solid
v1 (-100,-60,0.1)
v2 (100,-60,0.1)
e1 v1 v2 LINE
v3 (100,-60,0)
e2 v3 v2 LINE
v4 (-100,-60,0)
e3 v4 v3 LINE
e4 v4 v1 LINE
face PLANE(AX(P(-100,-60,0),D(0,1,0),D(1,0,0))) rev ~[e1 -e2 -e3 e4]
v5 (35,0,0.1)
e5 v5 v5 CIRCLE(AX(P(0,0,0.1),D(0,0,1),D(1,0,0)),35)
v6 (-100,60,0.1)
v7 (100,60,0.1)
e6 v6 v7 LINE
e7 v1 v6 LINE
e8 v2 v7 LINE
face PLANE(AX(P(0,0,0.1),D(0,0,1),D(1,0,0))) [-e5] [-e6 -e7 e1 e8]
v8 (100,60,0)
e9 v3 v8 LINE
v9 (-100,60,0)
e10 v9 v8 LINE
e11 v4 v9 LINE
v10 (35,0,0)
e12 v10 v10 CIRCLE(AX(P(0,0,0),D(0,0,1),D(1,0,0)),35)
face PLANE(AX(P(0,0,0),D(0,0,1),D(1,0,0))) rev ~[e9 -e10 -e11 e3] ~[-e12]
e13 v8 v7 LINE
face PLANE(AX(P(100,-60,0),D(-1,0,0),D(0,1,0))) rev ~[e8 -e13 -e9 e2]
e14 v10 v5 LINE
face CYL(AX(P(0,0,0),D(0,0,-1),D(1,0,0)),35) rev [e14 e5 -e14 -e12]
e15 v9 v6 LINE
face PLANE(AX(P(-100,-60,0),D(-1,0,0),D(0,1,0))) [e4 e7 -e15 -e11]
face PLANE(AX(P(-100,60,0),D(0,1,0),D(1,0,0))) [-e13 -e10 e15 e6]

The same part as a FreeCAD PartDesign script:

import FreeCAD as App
import Part
import Sketcher

V = App.Vector

doc = App.newDocument("Part")
body = doc.addObject("PartDesign::Body", "Body")

sketch1 = doc.addObject("Sketcher::SketchObject", "Sketch")
body.addObject(sketch1)
sketch1.AttachmentSupport = (doc.XY_Plane, [""])
sketch1.MapMode = "FlatFace"
sketch1.addGeometry([
    Part.LineSegment(V(-100, 60, 0), V(-100, -60, 0)),
    Part.LineSegment(V(-100, -60, 0), V(100, -60, 0)),
    Part.LineSegment(V(100, -60, 0), V(100, 60, 0)),
    Part.LineSegment(V(100, 60, 0), V(-100, 60, 0)),
    Part.Circle(V(0, 0, 0), V(0, 0, 1), 35),
], False)
sketch1.addConstraint([
    Sketcher.Constraint("Coincident", 0, 2, 1, 1),
    Sketcher.Constraint("Coincident", 1, 2, 2, 1),
    Sketcher.Constraint("Coincident", 2, 2, 3, 1),
    Sketcher.Constraint("Coincident", 3, 2, 0, 1),
    Sketcher.Constraint("Vertical", 0),
    Sketcher.Constraint("Horizontal", 1),
    Sketcher.Constraint("Vertical", 2),
    Sketcher.Constraint("Horizontal", 3),
    Sketcher.Constraint("Coincident", 4, 3, -1, 1),
    Sketcher.Constraint("Symmetric", 0, 2, 2, 2, -1, 1),
    Sketcher.Constraint("Diameter", 4, 70.0),
    Sketcher.Constraint("DistanceX", 1, 1, 1, 2, 200.0),
    Sketcher.Constraint("DistanceY", 0, 2, 0, 1, 120.0),
])
pad1 = doc.addObject("PartDesign::Pad", "Pad")
body.addObject(pad1)
pad1.Profile = sketch1
pad1.Length = 0.1

doc.recompute()
